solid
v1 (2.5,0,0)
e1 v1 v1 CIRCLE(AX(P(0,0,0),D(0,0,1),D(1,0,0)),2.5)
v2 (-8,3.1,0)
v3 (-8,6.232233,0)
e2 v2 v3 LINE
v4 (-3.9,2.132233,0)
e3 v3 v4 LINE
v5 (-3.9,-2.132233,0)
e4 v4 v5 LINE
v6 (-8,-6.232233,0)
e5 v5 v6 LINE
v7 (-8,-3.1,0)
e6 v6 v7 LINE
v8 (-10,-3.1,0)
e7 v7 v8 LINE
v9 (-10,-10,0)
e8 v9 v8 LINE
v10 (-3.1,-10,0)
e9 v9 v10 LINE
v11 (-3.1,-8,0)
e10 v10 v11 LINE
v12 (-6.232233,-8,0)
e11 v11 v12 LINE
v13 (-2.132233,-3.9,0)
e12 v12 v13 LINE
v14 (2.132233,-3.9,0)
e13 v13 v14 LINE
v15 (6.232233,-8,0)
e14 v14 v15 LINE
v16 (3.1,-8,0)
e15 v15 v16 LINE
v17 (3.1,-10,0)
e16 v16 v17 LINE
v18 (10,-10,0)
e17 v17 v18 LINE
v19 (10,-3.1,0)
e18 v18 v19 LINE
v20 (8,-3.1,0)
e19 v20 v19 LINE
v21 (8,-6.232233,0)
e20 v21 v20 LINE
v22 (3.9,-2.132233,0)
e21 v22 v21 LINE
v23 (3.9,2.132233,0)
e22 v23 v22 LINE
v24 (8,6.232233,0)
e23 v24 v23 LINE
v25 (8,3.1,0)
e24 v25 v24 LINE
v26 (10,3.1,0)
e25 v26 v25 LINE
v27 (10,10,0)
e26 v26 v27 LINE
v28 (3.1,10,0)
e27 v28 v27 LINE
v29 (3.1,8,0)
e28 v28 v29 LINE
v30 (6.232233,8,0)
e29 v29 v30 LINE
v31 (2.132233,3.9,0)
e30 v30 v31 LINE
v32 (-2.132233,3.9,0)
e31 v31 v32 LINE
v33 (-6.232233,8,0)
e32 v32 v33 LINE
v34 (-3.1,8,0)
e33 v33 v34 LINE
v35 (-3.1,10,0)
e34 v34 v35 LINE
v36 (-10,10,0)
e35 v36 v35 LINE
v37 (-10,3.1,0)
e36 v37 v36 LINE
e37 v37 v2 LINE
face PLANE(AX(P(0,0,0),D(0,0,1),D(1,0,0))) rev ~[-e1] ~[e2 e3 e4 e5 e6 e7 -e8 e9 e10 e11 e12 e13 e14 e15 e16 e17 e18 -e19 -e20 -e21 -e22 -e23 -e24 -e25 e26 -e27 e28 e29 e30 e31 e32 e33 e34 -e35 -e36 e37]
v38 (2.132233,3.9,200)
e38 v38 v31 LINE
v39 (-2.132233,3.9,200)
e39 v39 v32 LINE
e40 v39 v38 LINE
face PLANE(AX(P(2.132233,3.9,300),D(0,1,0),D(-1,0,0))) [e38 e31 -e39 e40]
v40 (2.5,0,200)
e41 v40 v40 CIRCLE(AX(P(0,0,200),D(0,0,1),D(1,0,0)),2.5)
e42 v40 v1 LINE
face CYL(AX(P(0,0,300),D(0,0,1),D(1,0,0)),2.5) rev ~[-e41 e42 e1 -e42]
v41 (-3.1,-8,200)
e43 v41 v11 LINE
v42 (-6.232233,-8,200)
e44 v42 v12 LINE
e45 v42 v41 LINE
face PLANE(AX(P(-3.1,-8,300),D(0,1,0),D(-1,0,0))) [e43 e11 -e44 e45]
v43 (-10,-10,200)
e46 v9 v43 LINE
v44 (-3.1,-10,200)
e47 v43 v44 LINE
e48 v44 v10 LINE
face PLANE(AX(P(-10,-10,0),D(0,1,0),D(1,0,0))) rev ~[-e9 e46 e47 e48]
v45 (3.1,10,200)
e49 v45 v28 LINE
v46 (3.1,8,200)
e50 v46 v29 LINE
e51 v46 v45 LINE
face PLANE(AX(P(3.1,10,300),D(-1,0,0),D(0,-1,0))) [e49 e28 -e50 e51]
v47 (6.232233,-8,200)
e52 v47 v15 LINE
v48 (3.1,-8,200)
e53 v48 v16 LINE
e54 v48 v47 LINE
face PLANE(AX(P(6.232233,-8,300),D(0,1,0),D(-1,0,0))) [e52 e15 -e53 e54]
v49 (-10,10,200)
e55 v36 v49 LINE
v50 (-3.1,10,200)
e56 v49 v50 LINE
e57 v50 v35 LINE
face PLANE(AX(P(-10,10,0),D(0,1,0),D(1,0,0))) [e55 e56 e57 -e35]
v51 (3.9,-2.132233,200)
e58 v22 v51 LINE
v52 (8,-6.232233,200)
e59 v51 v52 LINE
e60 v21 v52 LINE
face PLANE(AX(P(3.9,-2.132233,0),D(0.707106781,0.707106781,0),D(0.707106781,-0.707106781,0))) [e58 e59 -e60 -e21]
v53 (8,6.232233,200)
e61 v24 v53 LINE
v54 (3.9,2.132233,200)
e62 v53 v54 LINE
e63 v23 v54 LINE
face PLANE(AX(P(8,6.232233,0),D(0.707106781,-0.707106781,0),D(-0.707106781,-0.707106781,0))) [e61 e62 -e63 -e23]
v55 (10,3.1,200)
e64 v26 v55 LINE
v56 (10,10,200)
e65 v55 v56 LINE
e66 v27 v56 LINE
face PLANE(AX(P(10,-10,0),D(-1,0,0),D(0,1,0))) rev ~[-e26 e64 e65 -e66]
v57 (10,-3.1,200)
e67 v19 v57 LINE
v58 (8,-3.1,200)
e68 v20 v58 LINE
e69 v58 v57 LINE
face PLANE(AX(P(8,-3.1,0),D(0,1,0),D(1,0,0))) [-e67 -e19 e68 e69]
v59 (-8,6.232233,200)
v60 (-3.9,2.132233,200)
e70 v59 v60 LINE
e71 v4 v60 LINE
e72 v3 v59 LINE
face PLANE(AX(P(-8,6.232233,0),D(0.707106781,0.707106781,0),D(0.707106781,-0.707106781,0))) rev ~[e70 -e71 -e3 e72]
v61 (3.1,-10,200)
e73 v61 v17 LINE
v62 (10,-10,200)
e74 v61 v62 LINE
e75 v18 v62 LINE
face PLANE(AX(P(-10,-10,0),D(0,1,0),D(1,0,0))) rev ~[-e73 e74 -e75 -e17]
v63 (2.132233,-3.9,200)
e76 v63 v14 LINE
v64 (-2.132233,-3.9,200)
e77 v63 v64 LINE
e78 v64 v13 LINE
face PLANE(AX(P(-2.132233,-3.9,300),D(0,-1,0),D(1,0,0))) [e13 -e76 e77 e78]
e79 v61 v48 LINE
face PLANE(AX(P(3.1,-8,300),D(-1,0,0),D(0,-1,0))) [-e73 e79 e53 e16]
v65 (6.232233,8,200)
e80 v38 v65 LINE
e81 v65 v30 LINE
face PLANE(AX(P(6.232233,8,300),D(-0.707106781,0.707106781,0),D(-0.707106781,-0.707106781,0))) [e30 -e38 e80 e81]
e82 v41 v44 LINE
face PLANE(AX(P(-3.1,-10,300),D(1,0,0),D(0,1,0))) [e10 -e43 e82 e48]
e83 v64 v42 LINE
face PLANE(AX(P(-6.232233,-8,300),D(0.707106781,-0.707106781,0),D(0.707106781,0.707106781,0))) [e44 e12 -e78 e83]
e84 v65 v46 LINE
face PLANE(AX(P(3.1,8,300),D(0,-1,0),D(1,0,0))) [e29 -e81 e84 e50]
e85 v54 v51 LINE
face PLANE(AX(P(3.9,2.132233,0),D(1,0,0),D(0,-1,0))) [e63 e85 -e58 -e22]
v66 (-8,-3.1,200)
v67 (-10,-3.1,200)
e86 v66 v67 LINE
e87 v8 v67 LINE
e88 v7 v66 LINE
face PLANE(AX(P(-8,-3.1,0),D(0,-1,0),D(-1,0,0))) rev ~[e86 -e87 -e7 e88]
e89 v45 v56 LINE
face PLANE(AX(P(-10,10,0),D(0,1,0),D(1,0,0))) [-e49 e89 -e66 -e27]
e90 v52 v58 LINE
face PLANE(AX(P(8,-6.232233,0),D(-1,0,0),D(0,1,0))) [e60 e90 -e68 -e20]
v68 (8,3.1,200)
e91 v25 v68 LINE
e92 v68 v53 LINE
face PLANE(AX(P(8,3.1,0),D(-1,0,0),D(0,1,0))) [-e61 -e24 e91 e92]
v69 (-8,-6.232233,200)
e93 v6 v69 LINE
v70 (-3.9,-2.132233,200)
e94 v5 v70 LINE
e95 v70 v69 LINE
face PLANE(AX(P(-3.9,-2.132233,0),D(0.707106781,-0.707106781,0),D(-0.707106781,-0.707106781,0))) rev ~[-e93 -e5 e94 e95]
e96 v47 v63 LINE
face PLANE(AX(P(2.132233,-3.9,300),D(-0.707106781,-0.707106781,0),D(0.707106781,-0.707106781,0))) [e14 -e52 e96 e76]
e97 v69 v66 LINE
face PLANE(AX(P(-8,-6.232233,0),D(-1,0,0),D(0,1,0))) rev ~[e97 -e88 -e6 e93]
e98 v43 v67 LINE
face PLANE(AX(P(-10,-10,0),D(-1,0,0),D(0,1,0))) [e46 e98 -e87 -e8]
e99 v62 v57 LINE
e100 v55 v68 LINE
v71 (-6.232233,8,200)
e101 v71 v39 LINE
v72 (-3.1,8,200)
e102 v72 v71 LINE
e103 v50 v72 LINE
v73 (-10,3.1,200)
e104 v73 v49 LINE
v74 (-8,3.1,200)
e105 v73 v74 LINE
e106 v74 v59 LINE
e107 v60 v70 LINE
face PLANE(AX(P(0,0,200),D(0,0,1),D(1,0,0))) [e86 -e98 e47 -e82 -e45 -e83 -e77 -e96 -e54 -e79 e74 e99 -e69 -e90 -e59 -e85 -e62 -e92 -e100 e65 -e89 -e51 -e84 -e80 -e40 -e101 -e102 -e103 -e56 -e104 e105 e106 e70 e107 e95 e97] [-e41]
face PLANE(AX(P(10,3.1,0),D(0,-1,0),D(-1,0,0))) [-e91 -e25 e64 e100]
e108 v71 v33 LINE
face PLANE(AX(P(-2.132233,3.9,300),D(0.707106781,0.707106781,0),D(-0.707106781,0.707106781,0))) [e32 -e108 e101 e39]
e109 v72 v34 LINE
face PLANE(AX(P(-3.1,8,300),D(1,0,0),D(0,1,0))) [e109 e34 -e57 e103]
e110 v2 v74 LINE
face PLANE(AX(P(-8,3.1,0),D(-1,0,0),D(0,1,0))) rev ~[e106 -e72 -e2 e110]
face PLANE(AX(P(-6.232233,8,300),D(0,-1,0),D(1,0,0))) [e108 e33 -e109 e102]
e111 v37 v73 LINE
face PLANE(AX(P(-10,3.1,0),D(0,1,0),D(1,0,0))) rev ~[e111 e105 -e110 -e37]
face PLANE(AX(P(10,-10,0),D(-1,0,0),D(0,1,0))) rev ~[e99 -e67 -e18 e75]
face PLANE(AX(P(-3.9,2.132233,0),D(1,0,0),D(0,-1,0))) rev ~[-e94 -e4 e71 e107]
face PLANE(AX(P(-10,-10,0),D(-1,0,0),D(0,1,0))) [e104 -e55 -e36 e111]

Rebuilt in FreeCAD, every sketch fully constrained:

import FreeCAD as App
import Part
import Sketcher

doc = App.newDocument("Part")
body = doc.addObject("PartDesign::Body", "Body")

# Sketch on XY plane
sketch1 = doc.addObject("Sketcher::SketchObject", "Sketch")
body.addObject(sketch1)
sketch1.AttachmentSupport = (doc.XY_Plane, [""])
sketch1.MapMode = "FlatFace"
sketch1.addGeometry(Part.LineSegment(App.Vector(-10, 10, 0), App.Vector(-10, -10, 0)), False)
sketch1.addGeometry(Part.LineSegment(App.Vector(-10, -10, 0), App.Vector(10, -10, 0)), False)
sketch1.addGeometry(Part.LineSegment(App.Vector(10, -10, 0), App.Vector(10, 10, 0)), False)
sketch1.addGeometry(Part.LineSegment(App.Vector(10, 10, 0), App.Vector(-10, 10, 0)), False)
sketch1.addConstraint(Sketcher.Constraint("Coincident", 0, 2, 1, 1))
sketch1.addConstraint(Sketcher.Constraint("Coincident", 1, 2, 2, 1))
sketch1.addConstraint(Sketcher.Constraint("Coincident", 2, 2, 3, 1))
sketch1.addConstraint(Sketcher.Constraint("Coincident", 3, 2, 0, 1))
sketch1.addConstraint(Sketcher.Constraint("Vertical", 0))
sketch1.addConstraint(Sketcher.Constraint("Horizontal", 1))
sketch1.addConstraint(Sketcher.Constraint("Vertical", 2))
sketch1.addConstraint(Sketcher.Constraint("Horizontal", 3))
sketch1.addConstraint(Sketcher.Constraint("Symmetric", 0, 2, 2, 2, -1, 1))
sketch1.addConstraint(Sketcher.Constraint("Equal", 3, 0))
sketch1.addConstraint(Sketcher.Constraint("DistanceX", 1, 1, 1, 2, 20.0))
pad1 = doc.addObject("PartDesign::Pad", "Pad")
body.addObject(pad1)
pad1.Profile = sketch1
pad1.Length = 300

# Sketch on XY plane
sketch2 = doc.addObject("Sketcher::SketchObject", "Sketch001")
body.addObject(sketch2)
sketch2.AttachmentSupport = (doc.XY_Plane, [""])
sketch2.MapMode = "FlatFace"
sketch2.AttachmentOffset = App.Placement(App.Vector(0, 0, 300), App.Rotation())
sketch2.addGeometry(Part.Circle(App.Vector(0, 0, 0), App.Vector(0, 0, 1), 2.5), False)
sketch2.addGeometry(Part.LineSegment(App.Vector(3.1, 10, 0), App.Vector(-3.1, 10, 0)), False)
sketch2.addGeometry(Part.LineSegment(App.Vector(-3.1, 10, 0), App.Vector(-3.1, 8, 0)), False)
sketch2.addGeometry(Part.LineSegment(App.Vector(-3.1, 8, 0), App.Vector(-6.232233, 8, 0)), False)
sketch2.addGeometry(Part.LineSegment(App.Vector(-6.232233, 8, 0), App.Vector(-2.132233, 3.9, 0)), False)
sketch2.addGeometry(Part.LineSegment(App.Vector(-2.132233, 3.9, 0), App.Vector(2.132233, 3.9, 0)), False)
sketch2.addGeometry(Part.LineSegment(App.Vector(2.132233, 3.9, 0), App.Vector(6.232233, 8, 0)), False)
sketch2.addGeometry(Part.LineSegment(App.Vector(6.232233, 8, 0), App.Vector(3.1, 8, 0)), False)
sketch2.addGeometry(Part.LineSegment(App.Vector(3.1, 8, 0), App.Vector(3.1, 10, 0)), False)
sketch2.addGeometry(Part.LineSegment(App.Vector(-6.232233, -8, 0), App.Vector(-3.1, -8, 0)), False)
sketch2.addGeometry(Part.LineSegment(App.Vector(-3.1, -8, 0), App.Vector(-3.1, -10, 0)), False)
sketch2.addGeometry(Part.LineSegment(App.Vector(-3.1, -10, 0), App.Vector(3.1, -10, 0)), False)
sketch2.addGeometry(Part.LineSegment(App.Vector(3.1, -10, 0), App.Vector(3.1, -8, 0)), False)
sketch2.addGeometry(Part.LineSegment(App.Vector(3.1, -8, 0), App.Vector(6.232233, -8, 0)), False)
sketch2.addGeometry(Part.LineSegment(App.Vector(6.232233, -8, 0), App.Vector(2.132233, -3.9, 0)), False)
sketch2.addGeometry(Part.LineSegment(App.Vector(2.132233, -3.9, 0), App.Vector(-2.132233, -3.9, 0)), False)
sketch2.addGeometry(Part.LineSegment(App.Vector(-2.132233, -3.9, 0), App.Vector(-6.232233, -8, 0)), False)
sketch2.addConstraint(Sketcher.Constraint("Coincident", 1, 2, 2, 1))
sketch2.addConstraint(Sketcher.Constraint("Coincident", 2, 2, 3, 1))
sketch2.addConstraint(Sketcher.Constraint("Coincident", 3, 2, 4, 1))
sketch2.addConstraint(Sketcher.Constraint("Coincident", 4, 2, 5, 1))
sketch2.addConstraint(Sketcher.Constraint("Coincident", 5, 2, 6, 1))
sketch2.addConstraint(Sketcher.Constraint("Coincident", 6, 2, 7, 1))
sketch2.addConstraint(Sketcher.Constraint("Coincident", 7, 2, 8, 1))
sketch2.addConstraint(Sketcher.Constraint("Coincident", 8, 2, 1, 1))
sketch2.addConstraint(Sketcher.Constraint("Coincident", 9, 2, 10, 1))
sketch2.addConstraint(Sketcher.Constraint("Coincident", 10, 2, 11, 1))
sketch2.addConstraint(Sketcher.Constraint("Coincident", 11, 2, 12, 1))
sketch2.addConstraint(Sketcher.Constraint("Coincident", 12, 2, 13, 1))
sketch2.addConstraint(Sketcher.Constraint("Coincident", 13, 2, 14, 1))
sketch2.addConstraint(Sketcher.Constraint("Coincident", 14, 2, 15, 1))
sketch2.addConstraint(Sketcher.Constraint("Coincident", 15, 2, 16, 1))
sketch2.addConstraint(Sketcher.Constraint("Coincident", 16, 2, 9, 1))
sketch2.addConstraint(Sketcher.Constraint("Horizontal", 1))
sketch2.addConstraint(Sketcher.Constraint("Vertical", 2))
sketch2.addConstraint(Sketcher.Constraint("Horizontal", 3))
sketch2.addConstraint(Sketcher.Constraint("Horizontal", 5))
sketch2.addConstraint(Sketcher.Constraint("Horizontal", 7))
sketch2.addConstraint(Sketcher.Constraint("Vertical", 8))
sketch2.addConstraint(Sketcher.Constraint("Horizontal", 9))
sketch2.addConstraint(Sketcher.Constraint("Vertical", 10))
sketch2.addConstraint(Sketcher.Constraint("Horizontal", 11))
sketch2.addConstraint(Sketcher.Constraint("Vertical", 12))
sketch2.addConstraint(Sketcher.Constraint("Horizontal", 13))
sketch2.addConstraint(Sketcher.Constraint("Horizontal", 15))
sketch2.addConstraint(Sketcher.Constraint("Coincident", 0, 3, -1, 1))
sketch2.addConstraint(Sketcher.Constraint("Symmetric", 7, 2, 9, 2, -1, 1))
sketch2.addConstraint(Sketcher.Constraint("Symmetric", 1, 2, 11, 2, -1, 1))
sketch2.addConstraint(Sketcher.Constraint("Symmetric", 3, 2, 13, 2, -1, 1))
sketch2.addConstraint(Sketcher.Constraint("Symmetric", 4, 2, 14, 2, -1, 1))
sketch2.addConstraint(Sketcher.Constraint("Symmetric", 3, 2, 6, 2, -2))
sketch2.addConstraint(Sketcher.Constraint("Perpendicular", 4, 6))
sketch2.addConstraint(Sketcher.Constraint("Perpendicular", 14, 16))
sketch2.addConstraint(Sketcher.Constraint("Vertical", 2, 2, 9, 2))
sketch2.addConstraint(Sketcher.Constraint("Vertical", 5, 2, 14, 2))
sketch2.addConstraint(Sketcher.Constraint("Vertical", 4, 2, 15, 2))
sketch2.addConstraint(Sketcher.Constraint("Diameter", 0, 5.0))
sketch2.addConstraint(Sketcher.Constraint("DistanceY", 2, 2, 2, 1, 2.0))
sketch2.addConstraint(Sketcher.Constraint("DistanceX", 1, 2, 1, 1, 6.2))
sketch2.addConstraint(Sketcher.Constraint("DistanceY", -1, 1, 1, 2, 10.0))
sketch2.addConstraint(Sketcher.Constraint("DistanceY", -1, 1, 4, 2, 3.9))
sketch2.addConstraint(Sketcher.Constraint("DistanceX", 3, 2, 3, 1, 3.132233))
pocket1 = doc.addObject("PartDesign::Pocket", "Pocket")
body.addObject(pocket1)
pocket1.Profile = sketch2
pocket1.Type = "ThroughAll"

# Sketch on XY plane
sketch3 = doc.addObject("Sketcher::SketchObject", "Sketch002")
body.addObject(sketch3)
sketch3.AttachmentSupport = (doc.XY_Plane, [""])
sketch3.MapMode = "FlatFace"
sketch3.addGeometry(Part.LineSegment(App.Vector(-10, 3.1, 0), App.Vector(-8, 3.1, 0)), False)
sketch3.addGeometry(Part.LineSegment(App.Vector(-8, 3.1, 0), App.Vector(-8, 6.232233, 0)), False)
sketch3.addGeometry(Part.LineSegment(App.Vector(-8, 6.232233, 0), App.Vector(-3.9, 2.132233, 0)), False)
sketch3.addGeometry(Part.LineSegment(App.Vector(-3.9, 2.132233, 0), App.Vector(-3.9, -2.132233, 0)), False)
sketch3.addGeometry(Part.LineSegment(App.Vector(-3.9, -2.132233, 0), App.Vector(-8, -6.232233, 0)), False)
sketch3.addGeometry(Part.LineSegment(App.Vector(-8, -6.232233, 0), App.Vector(-8, -3.1, 0)), False)
sketch3.addGeometry(Part.LineSegment(App.Vector(-8, -3.1, 0), App.Vector(-10, -3.1, 0)), False)
sketch3.addGeometry(Part.LineSegment(App.Vector(-10, -3.1, 0), App.Vector(-10, 3.1, 0)), False)
sketch3.addGeometry(Part.LineSegment(App.Vector(3.9, -2.132233, 0), App.Vector(3.9, 2.132233, 0)), False)
sketch3.addGeometry(Part.LineSegment(App.Vector(3.9, 2.132233, 0), App.Vector(8, 6.232233, 0)), False)
sketch3.addGeometry(Part.LineSegment(App.Vector(8, 6.232233, 0), App.Vector(8, 3.1, 0)), False)
sketch3.addGeometry(Part.LineSegment(App.Vector(8, 3.1, 0), App.Vector(10, 3.1, 0)), False)
sketch3.addGeometry(Part.LineSegment(App.Vector(10, 3.1, 0), App.Vector(10, -3.1, 0)), False)
sketch3.addGeometry(Part.LineSegment(App.Vector(10, -3.1, 0), App.Vector(8, -3.1, 0)), False)
sketch3.addGeometry(Part.LineSegment(App.Vector(8, -3.1, 0), App.Vector(8, -6.232233, 0)), False)
sketch3.addGeometry(Part.LineSegment(App.Vector(8, -6.232233, 0), App.Vector(3.9, -2.132233, 0)), False)
sketch3.addConstraint(Sketcher.Constraint("Coincident", 0, 2, 1, 1))
sketch3.addConstraint(Sketcher.Constraint("Coincident", 1, 2, 2, 1))
sketch3.addConstraint(Sketcher.Constraint("Coincident", 2, 2, 3, 1))
sketch3.addConstraint(Sketcher.Constraint("Coincident", 3, 2, 4, 1))
sketch3.addConstraint(Sketcher.Constraint("Coincident", 4, 2, 5, 1))
sketch3.addConstraint(Sketcher.Constraint("Coincident", 5, 2, 6, 1))
sketch3.addConstraint(Sketcher.Constraint("Coincident", 6, 2, 7, 1))
sketch3.addConstraint(Sketcher.Constraint("Coincident", 7, 2, 0, 1))
sketch3.addConstraint(Sketcher.Constraint("Coincident", 8, 2, 9, 1))
sketch3.addConstraint(Sketcher.Constraint("Coincident", 9, 2, 10, 1))
sketch3.addConstraint(Sketcher.Constraint("Coincident", 10, 2, 11, 1))
sketch3.addConstraint(Sketcher.Constraint("Coincident", 11, 2, 12, 1))
sketch3.addConstraint(Sketcher.Constraint("Coincident", 12, 2, 13, 1))
sketch3.addConstraint(Sketcher.Constraint("Coincident", 13, 2, 14, 1))
sketch3.addConstraint(Sketcher.Constraint("Coincident", 14, 2, 15, 1))
sketch3.addConstraint(Sketcher.Constraint("Coincident", 15, 2, 8, 1))
sketch3.addConstraint(Sketcher.Constraint("Horizontal", 0))
sketch3.addConstraint(Sketcher.Constraint("Vertical", 1))
sketch3.addConstraint(Sketcher.Constraint("Vertical", 3))
sketch3.addConstraint(Sketcher.Constraint("Vertical", 5))
sketch3.addConstraint(Sketcher.Constraint("Horizontal", 6))
sketch3.addConstraint(Sketcher.Constraint("Vertical", 7))
sketch3.addConstraint(Sketcher.Constraint("Vertical", 8))
sketch3.addConstraint(Sketcher.Constraint("Vertical", 10))
sketch3.addConstraint(Sketcher.Constraint("Horizontal", 11))
sketch3.addConstraint(Sketcher.Constraint("Vertical", 12))
sketch3.addConstraint(Sketcher.Constraint("Horizontal", 13))
sketch3.addConstraint(Sketcher.Constraint("Vertical", 14))
sketch3.addConstraint(Sketcher.Constraint("Symmetric", 3, 2, 8, 2, -1, 1))
sketch3.addConstraint(Sketcher.Constraint("Symmetric", 4, 2, 9, 2, -1, 1))
sketch3.addConstraint(Sketcher.Constraint("Symmetric", 6, 2, 11, 2, -1, 1))
sketch3.addConstraint(Sketcher.Constraint("Symmetric", 0, 2, 13, 2, -1, 1))
sketch3.addConstraint(Sketcher.Constraint("Symmetric", 1, 2, 9, 2, -2))
sketch3.addConstraint(Sketcher.Constraint("Perpendicular", 2, 4))
sketch3.addConstraint(Sketcher.Constraint("Perpendicular", 9, 15))
sketch3.addConstraint(Sketcher.Constraint("Horizontal", 2, 2, 8, 2))
sketch3.addConstraint(Sketcher.Constraint("Horizontal", 7, 2, 10, 2))
sketch3.addConstraint(Sketcher.Constraint("Horizontal", 4, 2, 14, 2))
sketch3.addConstraint(Sketcher.Constraint("DistanceX", 0, 1, 0, 2, 2.0))
sketch3.addConstraint(Sketcher.Constraint("DistanceY", 7, 1, 7, 2, 6.2))
sketch3.addConstraint(Sketcher.Constraint("DistanceX", 0, 2, -1, 1, 8.0))
sketch3.addConstraint(Sketcher.Constraint("DistanceX", 2, 2, -1, 1, 3.9))
sketch3.addConstraint(Sketcher.Constraint("DistanceY", 1, 1, 1, 2, 3.132233))
pocket2 = doc.addObject("PartDesign::Pocket", "Pocket001")
body.addObject(pocket2)
pocket2.Profile = sketch3
pocket2.Type = "ThroughAll"
pocket2.Reversed = True

# Sketch on XY plane
sketch4 = doc.addObject("Sketcher::SketchObject", "Sketch003")
body.addObject(sketch4)
sketch4.AttachmentSupport = (doc.XY_Plane, [""])
sketch4.MapMode = "FlatFace"
sketch4.AttachmentOffset = App.Placement(App.Vector(0, 0, 300), App.Rotation())
sketch4.addGeometry(Part.LineSegment(App.Vector(-10, 10, 0), App.Vector(-10, -10, 0)), False)
sketch4.addGeometry(Part.LineSegment(App.Vector(-10, -10, 0), App.Vector(10, -10, 0)), False)
sketch4.addGeometry(Part.LineSegment(App.Vector(10, -10, 0), App.Vector(10, 10, 0)), False)
sketch4.addGeometry(Part.LineSegment(App.Vector(10, 10, 0), App.Vector(-10, 10, 0)), False)
sketch4.addConstraint(Sketcher.Constraint("Coincident", 0, 2, 1, 1))
sketch4.addConstraint(Sketcher.Constraint("Coincident", 1, 2, 2, 1))
sketch4.addConstraint(Sketcher.Constraint("Coincident", 2, 2, 3, 1))
sketch4.addConstraint(Sketcher.Constraint("Coincident", 3, 2, 0, 1))
sketch4.addConstraint(Sketcher.Constraint("Vertical", 0))
sketch4.addConstraint(Sketcher.Constraint("Horizontal", 1))
sketch4.addConstraint(Sketcher.Constraint("Vertical", 2))
sketch4.addConstraint(Sketcher.Constraint("Horizontal", 3))
sketch4.addConstraint(Sketcher.Constraint("Symmetric", 0, 2, 2, 2, -1, 1))
sketch4.addConstraint(Sketcher.Constraint("Equal", 3, 0))
sketch4.addConstraint(Sketcher.Constraint("DistanceX", 1, 1, 1, 2, 20.0))
pocket3 = doc.addObject("PartDesign::Pocket", "Pocket002")
body.addObject(pocket3)
pocket3.Profile = sketch4
pocket3.Length = 100

doc.recompute()
